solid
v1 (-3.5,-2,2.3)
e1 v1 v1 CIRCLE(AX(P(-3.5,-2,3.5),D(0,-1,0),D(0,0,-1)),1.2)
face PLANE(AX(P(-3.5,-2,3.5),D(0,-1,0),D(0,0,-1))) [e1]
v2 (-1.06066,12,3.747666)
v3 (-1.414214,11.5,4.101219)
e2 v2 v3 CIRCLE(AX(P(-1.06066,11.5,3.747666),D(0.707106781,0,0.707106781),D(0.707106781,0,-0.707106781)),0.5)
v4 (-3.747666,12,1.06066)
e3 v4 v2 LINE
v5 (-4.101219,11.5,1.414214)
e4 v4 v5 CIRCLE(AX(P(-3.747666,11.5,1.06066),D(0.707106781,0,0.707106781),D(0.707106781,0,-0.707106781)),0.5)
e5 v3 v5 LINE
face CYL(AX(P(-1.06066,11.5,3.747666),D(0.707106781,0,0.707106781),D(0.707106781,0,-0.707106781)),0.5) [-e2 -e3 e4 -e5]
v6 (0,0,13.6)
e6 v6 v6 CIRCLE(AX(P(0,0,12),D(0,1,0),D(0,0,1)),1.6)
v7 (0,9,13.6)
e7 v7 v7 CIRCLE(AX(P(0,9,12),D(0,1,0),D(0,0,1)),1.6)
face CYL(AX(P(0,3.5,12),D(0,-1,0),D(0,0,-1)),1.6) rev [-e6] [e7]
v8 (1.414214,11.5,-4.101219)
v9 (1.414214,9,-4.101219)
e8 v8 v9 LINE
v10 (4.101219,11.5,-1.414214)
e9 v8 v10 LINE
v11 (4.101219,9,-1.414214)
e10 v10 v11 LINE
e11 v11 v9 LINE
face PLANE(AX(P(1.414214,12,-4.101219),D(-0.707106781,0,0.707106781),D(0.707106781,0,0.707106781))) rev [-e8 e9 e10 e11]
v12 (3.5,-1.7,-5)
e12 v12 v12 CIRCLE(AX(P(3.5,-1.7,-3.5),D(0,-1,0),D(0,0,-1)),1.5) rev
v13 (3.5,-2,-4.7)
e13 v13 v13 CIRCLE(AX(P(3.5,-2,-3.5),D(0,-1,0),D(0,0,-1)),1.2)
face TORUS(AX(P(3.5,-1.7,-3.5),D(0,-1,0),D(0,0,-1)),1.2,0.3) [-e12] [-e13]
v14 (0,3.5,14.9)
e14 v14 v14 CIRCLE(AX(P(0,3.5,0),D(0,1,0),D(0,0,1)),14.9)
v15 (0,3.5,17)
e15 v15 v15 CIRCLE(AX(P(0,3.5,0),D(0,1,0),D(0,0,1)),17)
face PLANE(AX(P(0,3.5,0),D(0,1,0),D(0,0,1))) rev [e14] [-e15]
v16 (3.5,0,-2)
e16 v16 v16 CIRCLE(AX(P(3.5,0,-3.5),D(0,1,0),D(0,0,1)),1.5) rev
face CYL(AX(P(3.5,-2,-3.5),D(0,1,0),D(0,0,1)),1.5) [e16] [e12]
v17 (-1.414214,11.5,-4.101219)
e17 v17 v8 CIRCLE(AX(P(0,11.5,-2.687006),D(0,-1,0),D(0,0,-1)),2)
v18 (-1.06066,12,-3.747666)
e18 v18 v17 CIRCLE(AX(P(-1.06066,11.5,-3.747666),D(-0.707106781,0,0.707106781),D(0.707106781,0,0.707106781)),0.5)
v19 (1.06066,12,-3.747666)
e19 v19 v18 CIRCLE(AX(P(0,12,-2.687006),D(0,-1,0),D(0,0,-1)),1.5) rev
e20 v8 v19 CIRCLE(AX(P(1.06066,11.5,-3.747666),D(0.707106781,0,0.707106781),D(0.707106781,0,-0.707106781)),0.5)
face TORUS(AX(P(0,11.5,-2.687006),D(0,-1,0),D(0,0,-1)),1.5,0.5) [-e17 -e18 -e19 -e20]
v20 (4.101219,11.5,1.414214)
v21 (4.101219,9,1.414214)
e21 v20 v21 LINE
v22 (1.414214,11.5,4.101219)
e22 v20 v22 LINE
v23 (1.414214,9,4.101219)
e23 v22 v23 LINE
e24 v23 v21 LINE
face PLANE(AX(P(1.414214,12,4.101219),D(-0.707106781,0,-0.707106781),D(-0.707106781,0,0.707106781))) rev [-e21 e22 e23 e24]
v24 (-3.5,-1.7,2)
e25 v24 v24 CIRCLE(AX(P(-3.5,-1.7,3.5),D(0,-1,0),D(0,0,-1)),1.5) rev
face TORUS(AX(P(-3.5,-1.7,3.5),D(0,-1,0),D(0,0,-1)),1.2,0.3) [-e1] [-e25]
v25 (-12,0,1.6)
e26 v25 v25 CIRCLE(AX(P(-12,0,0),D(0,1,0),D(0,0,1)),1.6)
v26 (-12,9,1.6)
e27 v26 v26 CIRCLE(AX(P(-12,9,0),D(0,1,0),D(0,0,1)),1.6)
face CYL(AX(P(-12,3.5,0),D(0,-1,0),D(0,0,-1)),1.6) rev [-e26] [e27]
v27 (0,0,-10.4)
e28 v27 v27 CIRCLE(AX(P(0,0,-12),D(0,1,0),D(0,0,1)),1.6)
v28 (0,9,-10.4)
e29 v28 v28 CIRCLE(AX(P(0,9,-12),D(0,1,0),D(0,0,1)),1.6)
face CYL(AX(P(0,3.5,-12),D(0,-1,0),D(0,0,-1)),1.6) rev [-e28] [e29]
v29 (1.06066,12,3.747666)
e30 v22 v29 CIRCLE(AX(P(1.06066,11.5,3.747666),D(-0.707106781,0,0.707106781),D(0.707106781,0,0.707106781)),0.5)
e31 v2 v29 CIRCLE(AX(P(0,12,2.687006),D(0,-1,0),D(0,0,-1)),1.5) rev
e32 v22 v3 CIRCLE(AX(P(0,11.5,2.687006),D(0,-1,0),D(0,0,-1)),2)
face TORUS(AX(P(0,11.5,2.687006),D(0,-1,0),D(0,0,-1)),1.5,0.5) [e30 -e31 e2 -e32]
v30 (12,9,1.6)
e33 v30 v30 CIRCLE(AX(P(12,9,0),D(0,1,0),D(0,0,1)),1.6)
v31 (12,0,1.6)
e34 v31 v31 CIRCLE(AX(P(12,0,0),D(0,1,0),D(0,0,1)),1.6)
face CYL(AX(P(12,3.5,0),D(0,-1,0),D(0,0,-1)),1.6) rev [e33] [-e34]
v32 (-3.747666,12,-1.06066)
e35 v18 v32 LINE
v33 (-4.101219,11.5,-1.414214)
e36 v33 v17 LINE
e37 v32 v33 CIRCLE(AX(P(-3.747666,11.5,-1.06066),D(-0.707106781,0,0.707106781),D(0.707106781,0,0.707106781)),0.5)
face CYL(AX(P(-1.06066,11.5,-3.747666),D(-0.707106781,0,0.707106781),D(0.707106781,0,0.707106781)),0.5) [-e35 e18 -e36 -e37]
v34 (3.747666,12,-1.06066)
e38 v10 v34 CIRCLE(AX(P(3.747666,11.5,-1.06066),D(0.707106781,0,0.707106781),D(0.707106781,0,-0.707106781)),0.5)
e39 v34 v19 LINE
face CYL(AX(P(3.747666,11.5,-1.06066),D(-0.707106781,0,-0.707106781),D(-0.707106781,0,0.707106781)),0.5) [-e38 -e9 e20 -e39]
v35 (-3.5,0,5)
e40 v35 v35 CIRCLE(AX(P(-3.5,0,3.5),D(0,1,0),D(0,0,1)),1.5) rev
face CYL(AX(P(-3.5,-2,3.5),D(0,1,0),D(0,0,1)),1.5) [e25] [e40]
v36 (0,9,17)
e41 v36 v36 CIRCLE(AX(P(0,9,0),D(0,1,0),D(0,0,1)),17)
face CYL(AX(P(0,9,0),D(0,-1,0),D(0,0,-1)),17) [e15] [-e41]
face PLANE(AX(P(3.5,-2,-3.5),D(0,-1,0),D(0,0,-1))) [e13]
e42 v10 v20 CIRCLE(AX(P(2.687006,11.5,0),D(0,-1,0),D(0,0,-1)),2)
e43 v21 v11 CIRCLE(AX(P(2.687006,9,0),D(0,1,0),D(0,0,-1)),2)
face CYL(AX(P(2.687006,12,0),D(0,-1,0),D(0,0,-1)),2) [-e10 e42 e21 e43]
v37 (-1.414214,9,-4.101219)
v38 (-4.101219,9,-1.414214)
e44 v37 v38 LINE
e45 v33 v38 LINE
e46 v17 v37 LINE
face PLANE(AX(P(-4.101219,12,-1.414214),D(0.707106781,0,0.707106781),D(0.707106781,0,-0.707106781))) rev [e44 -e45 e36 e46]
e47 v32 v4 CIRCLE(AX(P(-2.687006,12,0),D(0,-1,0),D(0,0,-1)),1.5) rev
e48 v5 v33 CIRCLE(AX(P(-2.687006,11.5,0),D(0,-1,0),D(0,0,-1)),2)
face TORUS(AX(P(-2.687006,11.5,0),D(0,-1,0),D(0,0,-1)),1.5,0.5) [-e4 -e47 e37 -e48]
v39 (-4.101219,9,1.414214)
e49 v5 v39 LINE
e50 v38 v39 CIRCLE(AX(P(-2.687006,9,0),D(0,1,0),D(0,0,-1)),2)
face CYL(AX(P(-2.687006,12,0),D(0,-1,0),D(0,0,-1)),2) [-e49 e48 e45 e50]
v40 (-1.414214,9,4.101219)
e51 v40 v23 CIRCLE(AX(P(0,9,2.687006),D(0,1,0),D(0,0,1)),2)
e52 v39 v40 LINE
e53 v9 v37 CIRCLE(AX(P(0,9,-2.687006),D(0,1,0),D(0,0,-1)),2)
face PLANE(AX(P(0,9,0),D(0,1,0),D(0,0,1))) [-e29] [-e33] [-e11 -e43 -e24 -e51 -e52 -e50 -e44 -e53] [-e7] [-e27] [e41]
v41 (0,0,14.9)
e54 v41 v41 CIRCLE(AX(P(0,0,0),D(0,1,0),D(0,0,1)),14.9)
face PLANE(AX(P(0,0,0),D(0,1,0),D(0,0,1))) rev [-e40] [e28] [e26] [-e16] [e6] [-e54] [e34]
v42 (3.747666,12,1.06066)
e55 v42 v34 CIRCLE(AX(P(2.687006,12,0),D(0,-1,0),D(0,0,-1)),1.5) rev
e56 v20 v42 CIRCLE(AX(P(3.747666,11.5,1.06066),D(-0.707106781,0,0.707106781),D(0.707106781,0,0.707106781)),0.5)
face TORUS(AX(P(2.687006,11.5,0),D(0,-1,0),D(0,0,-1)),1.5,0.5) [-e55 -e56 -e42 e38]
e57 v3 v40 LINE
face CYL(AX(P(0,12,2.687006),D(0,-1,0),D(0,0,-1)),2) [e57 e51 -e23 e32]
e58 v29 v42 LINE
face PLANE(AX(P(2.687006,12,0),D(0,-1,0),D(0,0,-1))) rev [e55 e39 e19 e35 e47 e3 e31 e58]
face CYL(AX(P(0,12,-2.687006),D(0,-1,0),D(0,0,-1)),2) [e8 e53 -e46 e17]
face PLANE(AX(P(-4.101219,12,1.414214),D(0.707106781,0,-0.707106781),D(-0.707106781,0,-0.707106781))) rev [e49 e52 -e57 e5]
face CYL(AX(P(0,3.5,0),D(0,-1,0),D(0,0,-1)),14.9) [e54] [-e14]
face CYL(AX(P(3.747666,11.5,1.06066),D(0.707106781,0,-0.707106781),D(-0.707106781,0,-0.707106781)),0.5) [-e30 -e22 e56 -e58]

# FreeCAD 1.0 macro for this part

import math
import FreeCAD as App
import Part
import Sketcher
Q = App.Units.Quantity


def edges_at(feature, points):
    """Names of the edges that pass closest to the given points."""
    edges = feature.Shape.Edges
    near = lambda p: min(range(len(edges)), key=lambda i: edges[i].distToShape(Part.Vertex(*p))[0])
    return sorted({f"Edge{near(p) + 1}" for p in points})

doc = App.newDocument("Part")
params = doc.addObject("Spreadsheet::Sheet", "Params")
for row, (alias, value) in enumerate([
    ("sketch1_diameter", "29.8 mm"),
    ("sketch1_diameter2", "3.2 mm"),
    ("pad1_length", "3.5 mm"),
    ("sketch2_diameter", "3 mm"),
    ("pad2_length", "2 mm"),
    ("fillet_radius", "0.3 mm"),
    ("sketch3_diameter", "34 mm"),
    ("sketch3_diameter2", "3.2 mm"),
    ("pad3_length", "5.5 mm"),
    ("sketch4_radius", "2 mm"),
    ("sketch4_length", "3.8 mm"),
    ("pad4_length", "3 mm"),
    ("fillet2_radius", "0.5 mm"),
], start=1):
    params.set(f"A{row}", alias)
    params.set(f"B{row}", "=" + value)
    params.setAlias(f"B{row}", alias)

body = doc.addObject("PartDesign::Body", "Body")

sketch1 = body.newObject("Sketcher::SketchObject", "Sketch")
sketch1.AttachmentSupport = (doc.getObject("XZ_Plane"), [""])
sketch1.MapMode = "FlatFace"
sketch1.addGeometry([
    Part.Circle(App.Vector(0, 0, 0), App.Vector(0, 0, 1), 14.9),
    Part.Circle(App.Vector(0, 12, 0), App.Vector(0, 0, 1), 1.6),
    Part.Circle(App.Vector(-12, 0, 0), App.Vector(0, 0, 1), 1.6),
    Part.Circle(App.Vector(12, 0, 0), App.Vector(0, 0, 1), 1.6),
    Part.Circle(App.Vector(0, -12, 0), App.Vector(0, 0, 1), 1.6),
], False)
sketch1.addConstraint([
    Sketcher.Constraint("Coincident", 0, 3, -1, 1),
    Sketcher.Constraint("Equal", 1, 2),
    Sketcher.Constraint("Equal", 2, 3),
    Sketcher.Constraint("Equal", 3, 4),
    Sketcher.Constraint("Symmetric", 2, 3, 3, 3, -1, 1),
    Sketcher.Constraint("Symmetric", 1, 3, 4, 3, -1, 1),
    Sketcher.Constraint("PointOnObject", 1, 3, -2),
    Sketcher.Constraint("PointOnObject", 2, 3, -1),
    Sketcher.Constraint("Diameter", 0, Q("29.8 mm")),
    Sketcher.Constraint("Diameter", 1, Q("3.2 mm")),
    Sketcher.Constraint("DistanceY", -1, 1, 1, 3, Q("12 mm")),
    Sketcher.Constraint("DistanceX", 2, 3, -1, 1, Q("12 mm")),
])
sketch1.setExpression("Constraints[8]", "Params.sketch1_diameter")
sketch1.setExpression("Constraints[9]", "Params.sketch1_diameter2")
pad1 = body.newObject("PartDesign::Pad", "Pad")
pad1.Profile = sketch1
pad1.setExpression("Length", "Params.pad1_length")
pad1.Reversed = True

sketch2 = body.newObject("Sketcher::SketchObject", "Sketch001")
sketch2.AttachmentSupport = (doc.getObject("XZ_Plane"), [""])
sketch2.MapMode = "FlatFace"
sketch2.addGeometry([
    Part.Circle(App.Vector(3.5, -3.5, 0), App.Vector(0, 0, 1), 1.5),
    Part.Circle(App.Vector(-3.5, 3.5, 0), App.Vector(0, 0, 1), 1.5),
], False)
sketch2.addConstraint([
    Sketcher.Constraint("Equal", 0, 1),
    Sketcher.Constraint("Symmetric", 0, 3, 1, 3, -1, 1),
    Sketcher.Constraint("Diameter", 0, Q("3 mm")),
    Sketcher.Constraint("DistanceX", 1, 3, 0, 3, Q("7 mm")),
    Sketcher.Constraint("DistanceY", 0, 3, 1, 3, Q("7 mm")),
])
sketch2.setExpression("Constraints[2]", "Params.sketch2_diameter")
pad2 = body.newObject("PartDesign::Pad", "Pad001")
pad2.Profile = sketch2
pad2.setExpression("Length", "Params.pad2_length")
doc.recompute()

fillet = body.newObject("PartDesign::Fillet", "Fillet")
fillet.Base = (pad2, edges_at(pad2, [(2, -2, -3.5), (-5, -2, 3.5)]))
fillet.setExpression("Radius", "Params.fillet_radius")

sketch3 = body.newObject("Sketcher::SketchObject", "Sketch002")
sketch3.AttachmentSupport = (doc.getObject("XZ_Plane"), [""])
sketch3.MapMode = "FlatFace"
sketch3.AttachmentOffset = App.Placement(App.Vector(0, 0, -3.5), App.Rotation())
sketch3.addGeometry([
    Part.Circle(App.Vector(0, 0, 0), App.Vector(0, 0, 1), 17),
    Part.Circle(App.Vector(0, 12, 0), App.Vector(0, 0, 1), 1.6),
    Part.Circle(App.Vector(-12, 0, 0), App.Vector(0, 0, 1), 1.6),
    Part.Circle(App.Vector(12, 0, 0), App.Vector(0, 0, 1), 1.6),
    Part.Circle(App.Vector(0, -12, 0), App.Vector(0, 0, 1), 1.6),
], False)
sketch3.addConstraint([
    Sketcher.Constraint("Coincident", 0, 3, -1, 1),
    Sketcher.Constraint("Equal", 1, 2),
    Sketcher.Constraint("Equal", 2, 3),
    Sketcher.Constraint("Equal", 3, 4),
    Sketcher.Constraint("Symmetric", 2, 3, 3, 3, -1, 1),
    Sketcher.Constraint("Symmetric", 1, 3, 4, 3, -1, 1),
    Sketcher.Constraint("PointOnObject", 1, 3, -2),
    Sketcher.Constraint("PointOnObject", 2, 3, -1),
    Sketcher.Constraint("Diameter", 0, Q("34 mm")),
    Sketcher.Constraint("Diameter", 1, Q("3.2 mm")),
    Sketcher.Constraint("DistanceY", -1, 1, 1, 3, Q("12 mm")),
    Sketcher.Constraint("DistanceX", 2, 3, -1, 1, Q("12 mm")),
])
sketch3.setExpression("Constraints[8]", "Params.sketch3_diameter")
sketch3.setExpression("Constraints[9]", "Params.sketch3_diameter2")
pad3 = body.newObject("PartDesign::Pad", "Pad002")
pad3.Profile = sketch3
pad3.setExpression("Length", "Params.pad3_length")
pad3.Reversed = True

sketch4 = body.newObject("Sketcher::SketchObject", "Sketch003")
sketch4.AttachmentSupport = (doc.getObject("XZ_Plane"), [""])
sketch4.MapMode = "FlatFace"
sketch4.AttachmentOffset = App.Placement(App.Vector(0, 0, -9), App.Rotation())
sketch4.addGeometry([
    Part.LineSegment(App.Vector(-1.4, -4.1, 0), App.Vector(-4.1, -1.4, 0)),
    Part.ArcOfCircle(Part.Circle(App.Vector(-2.7, 0, 0), App.Vector(0, 0, 1), 2), math.radians(135), math.radians(225)),
    Part.LineSegment(App.Vector(-4.1, 1.4, 0), App.Vector(-1.4, 4.1, 0)),
    Part.ArcOfCircle(Part.Circle(App.Vector(0, 2.7, 0), App.Vector(0, 0, 1), 2), math.radians(45), math.radians(135)),
    Part.LineSegment(App.Vector(1.4, 4.1, 0), App.Vector(4.1, 1.4, 0)),
    Part.ArcOfCircle(Part.Circle(App.Vector(2.7, 0, 0), App.Vector(0, 0, 1), 2), math.radians(-45), math.radians(45)),
    Part.LineSegment(App.Vector(4.1, -1.4, 0), App.Vector(1.4, -4.1, 0)),
    Part.ArcOfCircle(Part.Circle(App.Vector(0, -2.7, 0), App.Vector(0, 0, 1), 2), math.radians(-135), math.radians(-45)),
], False)
sketch4.addConstraint([
    Sketcher.Constraint("Tangent", 0, 2, 1, 2),
    Sketcher.Constraint("Tangent", 1, 1, 2, 1),
    Sketcher.Constraint("Tangent", 2, 2, 3, 2),
    Sketcher.Constraint("Tangent", 3, 1, 4, 1),
    Sketcher.Constraint("Tangent", 4, 2, 5, 2),
    Sketcher.Constraint("Tangent", 5, 1, 6, 1),
    Sketcher.Constraint("Tangent", 6, 2, 7, 2),
    Sketcher.Constraint("Tangent", 7, 1, 0, 1),
    Sketcher.Constraint("Equal", 1, 3),
    Sketcher.Constraint("Equal", 3, 5),
    Sketcher.Constraint("Equal", 5, 7),
    Sketcher.Constraint("Symmetric", 1, 3, 5, 3, -1, 1),
    Sketcher.Constraint("Symmetric", 3, 3, 7, 3, -1, 1),
    Sketcher.Constraint("Symmetric", 2, 2, 3, 1, -2),
    Sketcher.Constraint("Perpendicular", 0, 2),
    Sketcher.Constraint("Radius", 1, Q("2 mm")),
    Sketcher.Constraint("Distance", 0, Q("3.8 mm")),
])
sketch4.setExpression("Constraints[15]", "Params.sketch4_radius")
sketch4.setExpression("Constraints[16]", "Params.sketch4_length")
pad4 = body.newObject("PartDesign::Pad", "Pad003")
pad4.Profile = sketch4
pad4.setExpression("Length", "Params.pad4_length")
pad4.Reversed = True
doc.recompute()

fillet2 = body.newObject("PartDesign::Fillet", "Fillet001")
fillet2.Base = (pad4, edges_at(pad4, [
    (4.687, 12, 0),
    (2.758, 12, -2.758),
    (0, 12, -4.687),
    (-2.758, 12, -2.758),
    (-4.687, 12, 0),
    (-2.758, 12, 2.758),
    (0, 12, 4.687),
    (2.758, 12, 2.758),
]))
fillet2.setExpression("Radius", "Params.fillet2_radius")

doc.recompute()
